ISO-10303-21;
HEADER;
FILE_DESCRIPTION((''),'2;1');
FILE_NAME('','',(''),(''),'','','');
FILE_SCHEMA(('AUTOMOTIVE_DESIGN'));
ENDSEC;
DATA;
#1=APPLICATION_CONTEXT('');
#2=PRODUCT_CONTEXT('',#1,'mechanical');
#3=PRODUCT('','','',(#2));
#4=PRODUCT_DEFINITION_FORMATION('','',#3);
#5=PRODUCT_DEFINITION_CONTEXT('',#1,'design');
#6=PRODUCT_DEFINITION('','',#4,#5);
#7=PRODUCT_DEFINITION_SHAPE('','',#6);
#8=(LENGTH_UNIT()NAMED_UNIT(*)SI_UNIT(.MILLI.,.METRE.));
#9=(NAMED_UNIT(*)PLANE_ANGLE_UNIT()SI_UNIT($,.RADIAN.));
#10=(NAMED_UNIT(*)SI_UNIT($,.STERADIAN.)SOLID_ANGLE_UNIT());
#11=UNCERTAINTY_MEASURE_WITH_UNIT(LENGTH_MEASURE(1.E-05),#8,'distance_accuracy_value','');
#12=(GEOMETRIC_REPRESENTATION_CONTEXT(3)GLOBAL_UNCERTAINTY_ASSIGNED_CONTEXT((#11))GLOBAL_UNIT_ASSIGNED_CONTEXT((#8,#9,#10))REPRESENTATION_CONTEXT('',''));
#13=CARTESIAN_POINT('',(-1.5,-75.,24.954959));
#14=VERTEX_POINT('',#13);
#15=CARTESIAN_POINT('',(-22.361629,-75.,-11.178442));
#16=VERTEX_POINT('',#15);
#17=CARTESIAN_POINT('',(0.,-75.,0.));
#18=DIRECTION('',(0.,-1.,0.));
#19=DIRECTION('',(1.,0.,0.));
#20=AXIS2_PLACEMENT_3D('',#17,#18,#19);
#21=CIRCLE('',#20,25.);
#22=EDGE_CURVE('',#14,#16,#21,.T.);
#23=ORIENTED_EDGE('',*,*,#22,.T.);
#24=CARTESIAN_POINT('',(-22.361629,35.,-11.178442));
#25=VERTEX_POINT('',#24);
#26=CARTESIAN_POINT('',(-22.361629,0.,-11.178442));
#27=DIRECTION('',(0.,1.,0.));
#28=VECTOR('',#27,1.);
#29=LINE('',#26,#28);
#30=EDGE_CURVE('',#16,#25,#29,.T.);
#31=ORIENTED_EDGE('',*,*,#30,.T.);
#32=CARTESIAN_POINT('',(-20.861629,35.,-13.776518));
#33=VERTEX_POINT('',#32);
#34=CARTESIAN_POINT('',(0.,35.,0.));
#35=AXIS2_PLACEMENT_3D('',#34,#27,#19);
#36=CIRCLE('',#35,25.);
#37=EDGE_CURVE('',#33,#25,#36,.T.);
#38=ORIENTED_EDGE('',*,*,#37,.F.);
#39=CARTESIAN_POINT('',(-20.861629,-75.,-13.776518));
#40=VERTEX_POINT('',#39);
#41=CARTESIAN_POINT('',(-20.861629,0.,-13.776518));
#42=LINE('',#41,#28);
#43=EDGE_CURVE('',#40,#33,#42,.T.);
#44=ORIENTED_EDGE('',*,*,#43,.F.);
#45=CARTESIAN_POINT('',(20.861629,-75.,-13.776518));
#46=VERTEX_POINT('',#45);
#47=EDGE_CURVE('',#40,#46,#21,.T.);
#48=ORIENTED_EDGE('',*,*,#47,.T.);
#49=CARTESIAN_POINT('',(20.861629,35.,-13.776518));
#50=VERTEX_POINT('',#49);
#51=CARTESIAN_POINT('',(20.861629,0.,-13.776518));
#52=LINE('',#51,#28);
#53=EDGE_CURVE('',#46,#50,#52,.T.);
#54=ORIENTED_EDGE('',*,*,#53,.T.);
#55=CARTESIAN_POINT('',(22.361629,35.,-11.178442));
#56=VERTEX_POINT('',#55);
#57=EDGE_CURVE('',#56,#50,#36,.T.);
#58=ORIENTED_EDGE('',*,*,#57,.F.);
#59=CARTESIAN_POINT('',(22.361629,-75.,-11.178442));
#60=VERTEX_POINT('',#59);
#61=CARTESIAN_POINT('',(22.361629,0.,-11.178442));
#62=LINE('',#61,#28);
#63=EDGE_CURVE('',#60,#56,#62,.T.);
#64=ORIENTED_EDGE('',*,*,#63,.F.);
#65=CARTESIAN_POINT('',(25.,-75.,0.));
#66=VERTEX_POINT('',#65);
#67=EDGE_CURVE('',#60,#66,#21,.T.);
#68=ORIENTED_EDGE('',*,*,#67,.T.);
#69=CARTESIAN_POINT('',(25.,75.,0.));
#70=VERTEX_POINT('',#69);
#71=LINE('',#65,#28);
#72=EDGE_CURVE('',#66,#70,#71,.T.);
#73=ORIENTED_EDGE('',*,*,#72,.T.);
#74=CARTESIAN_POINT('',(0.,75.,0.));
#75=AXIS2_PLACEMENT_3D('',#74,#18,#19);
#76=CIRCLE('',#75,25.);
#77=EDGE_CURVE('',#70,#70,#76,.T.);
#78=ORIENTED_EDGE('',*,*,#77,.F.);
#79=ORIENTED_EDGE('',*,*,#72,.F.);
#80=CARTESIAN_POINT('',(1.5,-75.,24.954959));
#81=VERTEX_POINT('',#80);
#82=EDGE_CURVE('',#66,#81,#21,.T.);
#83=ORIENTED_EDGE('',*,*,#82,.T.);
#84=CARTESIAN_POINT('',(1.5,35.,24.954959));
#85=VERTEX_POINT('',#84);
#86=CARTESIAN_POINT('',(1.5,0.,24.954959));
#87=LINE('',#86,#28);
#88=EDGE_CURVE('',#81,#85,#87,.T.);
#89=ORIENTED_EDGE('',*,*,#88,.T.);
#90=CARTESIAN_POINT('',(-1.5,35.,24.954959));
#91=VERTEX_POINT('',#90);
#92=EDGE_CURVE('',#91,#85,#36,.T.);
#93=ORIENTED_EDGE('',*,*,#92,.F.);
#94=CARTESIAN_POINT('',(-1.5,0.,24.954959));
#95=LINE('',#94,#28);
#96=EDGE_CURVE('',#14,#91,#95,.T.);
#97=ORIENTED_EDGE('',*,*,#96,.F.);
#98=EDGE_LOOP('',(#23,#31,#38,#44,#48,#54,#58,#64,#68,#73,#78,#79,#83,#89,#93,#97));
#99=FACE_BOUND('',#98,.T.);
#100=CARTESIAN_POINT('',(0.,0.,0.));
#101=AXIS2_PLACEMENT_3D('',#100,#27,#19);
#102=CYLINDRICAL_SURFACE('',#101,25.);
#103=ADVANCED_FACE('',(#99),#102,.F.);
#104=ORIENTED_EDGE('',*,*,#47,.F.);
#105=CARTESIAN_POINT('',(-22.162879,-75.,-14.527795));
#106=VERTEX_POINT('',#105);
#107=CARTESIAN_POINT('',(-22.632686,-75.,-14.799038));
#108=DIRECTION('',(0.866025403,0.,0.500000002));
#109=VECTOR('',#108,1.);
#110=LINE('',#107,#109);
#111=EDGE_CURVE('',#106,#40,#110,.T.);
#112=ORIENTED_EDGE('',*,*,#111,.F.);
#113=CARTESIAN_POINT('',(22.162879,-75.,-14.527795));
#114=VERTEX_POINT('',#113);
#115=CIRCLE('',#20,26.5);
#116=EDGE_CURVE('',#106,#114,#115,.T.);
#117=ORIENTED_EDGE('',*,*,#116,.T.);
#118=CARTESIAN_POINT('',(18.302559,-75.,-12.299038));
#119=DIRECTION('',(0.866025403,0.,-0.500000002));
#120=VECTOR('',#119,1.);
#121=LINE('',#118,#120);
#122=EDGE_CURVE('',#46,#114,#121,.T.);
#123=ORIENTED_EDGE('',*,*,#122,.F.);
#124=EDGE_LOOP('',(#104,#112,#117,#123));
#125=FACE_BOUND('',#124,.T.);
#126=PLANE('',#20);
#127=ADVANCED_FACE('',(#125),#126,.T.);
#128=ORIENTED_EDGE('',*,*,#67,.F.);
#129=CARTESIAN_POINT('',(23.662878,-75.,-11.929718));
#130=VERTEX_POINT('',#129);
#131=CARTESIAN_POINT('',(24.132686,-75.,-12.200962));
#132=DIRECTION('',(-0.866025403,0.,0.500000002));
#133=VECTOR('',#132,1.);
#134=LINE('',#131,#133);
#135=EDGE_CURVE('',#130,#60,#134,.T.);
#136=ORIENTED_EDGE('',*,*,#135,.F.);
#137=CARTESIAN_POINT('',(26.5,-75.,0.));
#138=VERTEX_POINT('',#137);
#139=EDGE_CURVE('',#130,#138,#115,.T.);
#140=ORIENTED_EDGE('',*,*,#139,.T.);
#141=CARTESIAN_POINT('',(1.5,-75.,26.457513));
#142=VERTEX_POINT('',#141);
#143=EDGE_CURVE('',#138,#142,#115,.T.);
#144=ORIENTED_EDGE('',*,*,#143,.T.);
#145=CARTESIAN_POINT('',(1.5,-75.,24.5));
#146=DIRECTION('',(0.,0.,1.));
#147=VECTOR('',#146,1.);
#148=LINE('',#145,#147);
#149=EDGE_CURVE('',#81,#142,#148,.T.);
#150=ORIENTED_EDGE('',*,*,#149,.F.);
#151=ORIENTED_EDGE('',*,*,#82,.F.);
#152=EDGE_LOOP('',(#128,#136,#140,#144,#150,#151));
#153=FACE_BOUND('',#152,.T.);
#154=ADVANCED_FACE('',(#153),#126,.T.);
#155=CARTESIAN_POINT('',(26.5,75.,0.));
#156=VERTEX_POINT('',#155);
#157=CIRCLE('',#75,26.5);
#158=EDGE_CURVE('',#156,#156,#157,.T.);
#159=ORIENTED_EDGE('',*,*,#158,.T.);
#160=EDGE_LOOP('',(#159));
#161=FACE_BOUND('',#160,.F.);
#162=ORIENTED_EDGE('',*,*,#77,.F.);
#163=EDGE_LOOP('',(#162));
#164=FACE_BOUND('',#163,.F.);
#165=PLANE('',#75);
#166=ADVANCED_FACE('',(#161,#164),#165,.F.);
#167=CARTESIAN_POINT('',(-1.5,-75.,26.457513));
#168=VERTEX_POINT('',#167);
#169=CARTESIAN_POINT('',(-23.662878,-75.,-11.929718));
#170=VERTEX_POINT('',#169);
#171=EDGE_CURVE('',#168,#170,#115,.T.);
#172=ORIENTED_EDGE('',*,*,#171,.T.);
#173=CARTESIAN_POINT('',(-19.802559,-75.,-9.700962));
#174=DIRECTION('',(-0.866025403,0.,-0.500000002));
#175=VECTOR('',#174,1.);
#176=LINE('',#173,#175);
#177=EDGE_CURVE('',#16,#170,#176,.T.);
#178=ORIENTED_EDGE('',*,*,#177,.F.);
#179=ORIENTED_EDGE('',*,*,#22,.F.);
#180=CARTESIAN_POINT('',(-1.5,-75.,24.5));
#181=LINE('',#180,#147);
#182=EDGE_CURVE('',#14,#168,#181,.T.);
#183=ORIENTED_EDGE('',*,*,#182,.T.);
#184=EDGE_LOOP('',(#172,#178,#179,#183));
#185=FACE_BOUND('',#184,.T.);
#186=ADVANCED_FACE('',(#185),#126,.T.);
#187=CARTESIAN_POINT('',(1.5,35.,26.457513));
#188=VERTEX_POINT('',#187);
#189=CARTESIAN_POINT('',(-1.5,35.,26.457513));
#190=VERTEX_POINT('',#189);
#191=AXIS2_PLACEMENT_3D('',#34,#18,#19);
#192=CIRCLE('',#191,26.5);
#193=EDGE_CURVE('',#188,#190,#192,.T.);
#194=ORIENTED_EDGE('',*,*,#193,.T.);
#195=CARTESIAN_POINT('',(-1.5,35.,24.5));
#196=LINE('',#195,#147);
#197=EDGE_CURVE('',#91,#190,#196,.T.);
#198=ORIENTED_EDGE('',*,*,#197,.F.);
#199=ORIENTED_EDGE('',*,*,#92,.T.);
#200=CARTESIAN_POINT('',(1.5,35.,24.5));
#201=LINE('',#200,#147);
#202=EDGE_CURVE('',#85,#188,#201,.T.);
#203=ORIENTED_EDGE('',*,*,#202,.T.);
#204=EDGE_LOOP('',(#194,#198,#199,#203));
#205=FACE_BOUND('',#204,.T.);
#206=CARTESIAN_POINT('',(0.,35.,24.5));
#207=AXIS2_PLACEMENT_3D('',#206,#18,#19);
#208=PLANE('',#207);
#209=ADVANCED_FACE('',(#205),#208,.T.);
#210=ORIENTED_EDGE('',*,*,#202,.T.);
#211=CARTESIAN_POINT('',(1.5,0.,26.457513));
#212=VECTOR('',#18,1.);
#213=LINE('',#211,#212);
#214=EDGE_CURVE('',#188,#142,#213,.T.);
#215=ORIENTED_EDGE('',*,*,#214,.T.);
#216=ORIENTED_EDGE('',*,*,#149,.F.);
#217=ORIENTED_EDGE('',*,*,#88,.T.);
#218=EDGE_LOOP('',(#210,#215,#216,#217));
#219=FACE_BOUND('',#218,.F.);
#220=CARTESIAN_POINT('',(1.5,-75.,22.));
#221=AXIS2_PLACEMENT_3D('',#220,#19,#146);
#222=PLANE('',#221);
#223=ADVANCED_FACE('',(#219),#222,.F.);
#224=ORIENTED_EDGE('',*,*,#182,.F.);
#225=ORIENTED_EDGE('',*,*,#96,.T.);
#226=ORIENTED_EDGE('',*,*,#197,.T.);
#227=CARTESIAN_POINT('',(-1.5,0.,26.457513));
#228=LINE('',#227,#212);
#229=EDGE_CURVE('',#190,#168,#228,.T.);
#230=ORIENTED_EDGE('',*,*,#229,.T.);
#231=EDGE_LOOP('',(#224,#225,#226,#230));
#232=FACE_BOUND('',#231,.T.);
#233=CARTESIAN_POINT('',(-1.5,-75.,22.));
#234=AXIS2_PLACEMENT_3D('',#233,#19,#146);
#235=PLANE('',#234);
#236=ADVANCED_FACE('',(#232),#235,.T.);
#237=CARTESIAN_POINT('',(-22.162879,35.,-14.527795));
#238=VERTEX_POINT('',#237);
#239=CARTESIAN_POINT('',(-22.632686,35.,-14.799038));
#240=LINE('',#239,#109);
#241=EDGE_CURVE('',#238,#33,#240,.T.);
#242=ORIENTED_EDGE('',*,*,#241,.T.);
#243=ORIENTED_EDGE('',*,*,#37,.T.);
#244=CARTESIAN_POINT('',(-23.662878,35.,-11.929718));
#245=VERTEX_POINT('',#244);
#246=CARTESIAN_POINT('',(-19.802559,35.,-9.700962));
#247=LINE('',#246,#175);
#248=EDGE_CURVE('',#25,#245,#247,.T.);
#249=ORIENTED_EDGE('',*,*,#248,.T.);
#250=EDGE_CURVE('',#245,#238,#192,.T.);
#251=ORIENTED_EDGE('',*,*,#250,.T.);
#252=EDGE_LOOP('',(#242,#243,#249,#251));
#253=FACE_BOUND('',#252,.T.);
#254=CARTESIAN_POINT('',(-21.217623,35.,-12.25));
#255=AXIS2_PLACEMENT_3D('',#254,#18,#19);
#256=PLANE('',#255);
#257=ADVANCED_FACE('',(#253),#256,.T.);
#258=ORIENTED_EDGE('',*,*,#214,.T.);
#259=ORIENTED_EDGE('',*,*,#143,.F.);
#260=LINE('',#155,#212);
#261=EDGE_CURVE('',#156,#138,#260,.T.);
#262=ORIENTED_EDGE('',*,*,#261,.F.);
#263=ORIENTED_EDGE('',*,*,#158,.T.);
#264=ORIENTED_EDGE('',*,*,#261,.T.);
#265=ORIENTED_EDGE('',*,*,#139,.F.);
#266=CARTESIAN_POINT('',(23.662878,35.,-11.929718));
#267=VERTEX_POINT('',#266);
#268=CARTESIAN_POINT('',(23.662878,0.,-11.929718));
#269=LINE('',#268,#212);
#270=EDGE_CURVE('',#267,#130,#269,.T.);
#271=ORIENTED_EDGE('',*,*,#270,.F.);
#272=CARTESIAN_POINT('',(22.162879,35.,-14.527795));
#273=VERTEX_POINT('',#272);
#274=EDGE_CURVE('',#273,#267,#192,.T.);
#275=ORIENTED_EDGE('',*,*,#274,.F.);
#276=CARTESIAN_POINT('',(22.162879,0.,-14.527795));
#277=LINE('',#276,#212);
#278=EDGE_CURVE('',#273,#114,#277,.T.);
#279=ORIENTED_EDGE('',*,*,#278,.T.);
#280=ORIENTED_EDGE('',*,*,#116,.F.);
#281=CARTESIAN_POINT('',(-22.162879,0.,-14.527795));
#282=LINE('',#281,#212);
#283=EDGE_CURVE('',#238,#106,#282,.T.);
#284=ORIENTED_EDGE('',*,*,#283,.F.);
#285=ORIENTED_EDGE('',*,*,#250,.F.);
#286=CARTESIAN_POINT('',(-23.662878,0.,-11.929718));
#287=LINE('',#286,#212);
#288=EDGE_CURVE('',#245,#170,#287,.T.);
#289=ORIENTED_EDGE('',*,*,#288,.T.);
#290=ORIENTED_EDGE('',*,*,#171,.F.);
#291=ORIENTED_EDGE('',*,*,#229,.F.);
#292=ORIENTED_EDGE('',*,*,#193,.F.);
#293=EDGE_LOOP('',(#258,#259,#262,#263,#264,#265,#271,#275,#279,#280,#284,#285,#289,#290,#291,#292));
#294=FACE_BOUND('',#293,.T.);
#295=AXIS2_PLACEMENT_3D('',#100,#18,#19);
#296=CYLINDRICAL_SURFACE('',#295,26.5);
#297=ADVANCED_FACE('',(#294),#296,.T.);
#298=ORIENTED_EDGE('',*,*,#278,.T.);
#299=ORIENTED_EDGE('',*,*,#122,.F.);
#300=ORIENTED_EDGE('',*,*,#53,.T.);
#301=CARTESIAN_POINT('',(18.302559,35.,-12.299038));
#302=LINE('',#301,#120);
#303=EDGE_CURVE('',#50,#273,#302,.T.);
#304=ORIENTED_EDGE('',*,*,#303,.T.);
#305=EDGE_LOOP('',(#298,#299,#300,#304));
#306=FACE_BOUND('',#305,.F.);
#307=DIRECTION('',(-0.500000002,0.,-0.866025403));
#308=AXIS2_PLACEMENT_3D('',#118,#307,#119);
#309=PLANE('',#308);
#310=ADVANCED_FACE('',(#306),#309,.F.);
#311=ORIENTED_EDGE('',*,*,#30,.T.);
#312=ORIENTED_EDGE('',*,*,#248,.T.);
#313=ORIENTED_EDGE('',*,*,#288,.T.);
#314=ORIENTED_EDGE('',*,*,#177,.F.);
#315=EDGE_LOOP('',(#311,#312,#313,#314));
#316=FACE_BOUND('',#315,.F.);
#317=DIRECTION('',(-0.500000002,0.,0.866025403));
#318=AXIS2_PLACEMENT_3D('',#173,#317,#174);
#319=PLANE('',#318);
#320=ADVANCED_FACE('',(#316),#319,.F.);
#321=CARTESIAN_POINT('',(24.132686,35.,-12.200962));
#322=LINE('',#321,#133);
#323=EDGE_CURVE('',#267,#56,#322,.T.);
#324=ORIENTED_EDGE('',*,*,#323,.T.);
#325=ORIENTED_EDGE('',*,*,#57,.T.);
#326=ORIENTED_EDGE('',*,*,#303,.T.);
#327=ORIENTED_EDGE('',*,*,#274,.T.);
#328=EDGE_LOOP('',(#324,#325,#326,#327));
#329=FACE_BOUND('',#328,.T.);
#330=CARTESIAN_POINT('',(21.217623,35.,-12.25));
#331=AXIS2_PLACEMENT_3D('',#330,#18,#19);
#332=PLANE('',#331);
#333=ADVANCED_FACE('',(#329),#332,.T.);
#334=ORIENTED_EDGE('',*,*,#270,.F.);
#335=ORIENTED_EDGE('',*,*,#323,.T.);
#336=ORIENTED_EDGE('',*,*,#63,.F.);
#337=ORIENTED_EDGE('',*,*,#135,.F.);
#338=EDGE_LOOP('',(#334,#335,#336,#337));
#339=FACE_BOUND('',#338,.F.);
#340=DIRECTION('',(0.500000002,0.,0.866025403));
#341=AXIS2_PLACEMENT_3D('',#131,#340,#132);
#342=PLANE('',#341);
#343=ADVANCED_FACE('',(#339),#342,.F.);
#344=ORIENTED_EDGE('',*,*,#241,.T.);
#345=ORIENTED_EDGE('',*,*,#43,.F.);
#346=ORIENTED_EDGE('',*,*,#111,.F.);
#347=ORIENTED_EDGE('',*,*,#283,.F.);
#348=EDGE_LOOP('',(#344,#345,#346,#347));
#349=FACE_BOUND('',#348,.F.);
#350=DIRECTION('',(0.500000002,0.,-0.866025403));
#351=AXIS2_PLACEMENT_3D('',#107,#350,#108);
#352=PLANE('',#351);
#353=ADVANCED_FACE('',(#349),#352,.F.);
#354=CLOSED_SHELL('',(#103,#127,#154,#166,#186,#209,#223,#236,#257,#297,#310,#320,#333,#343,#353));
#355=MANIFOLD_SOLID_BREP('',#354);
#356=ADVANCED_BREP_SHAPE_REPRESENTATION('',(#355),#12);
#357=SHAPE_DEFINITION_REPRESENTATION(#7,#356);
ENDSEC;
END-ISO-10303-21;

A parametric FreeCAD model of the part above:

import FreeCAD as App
import Part
import Sketcher

V = App.Vector
Q = App.Units.Quantity

doc = App.newDocument("Part")
body = doc.addObject("PartDesign::Body", "Body")

# Sketch on XZ plane
sketch1 = body.newObject("Sketcher::SketchObject", "Sketch")
sketch1.AttachmentSupport = (doc.getObject("XZ_Plane"), [""])
sketch1.MapMode = "FlatFace"
sketch1.addGeometry(Part.Circle(V(0, 0, 0), V(0, 0, 1), 26), False)
sketch1.addGeometry(Part.Circle(V(0, 0, 0), V(0, 0, 1), 25), False)
sketch1.addConstraint(Sketcher.Constraint("Coincident", 0, 3, -1, 1))
sketch1.addConstraint(Sketcher.Constraint("Coincident", 1, 3, -1, 1))
sketch1.addConstraint(Sketcher.Constraint("Diameter", 0, Q("53 mm")))
sketch1.addConstraint(Sketcher.Constraint("Diameter", 1, Q("50 mm")))
pad1 = body.newObject("PartDesign::Pad", "Pad")
pad1.Profile = sketch1
pad1.Length = 150
pad1.Midplane = True

# Sketch on XZ plane
sketch2 = body.newObject("Sketcher::SketchObject", "Sketch001")
sketch2.AttachmentSupport = (doc.getObject("XZ_Plane"), [""])
sketch2.MapMode = "FlatFace"
sketch2.AttachmentOffset = App.Placement(V(0, 0, 75), App.Rotation())
sketch2.addGeometry(Part.LineSegment(V(-1.5, 27, 0), V(-1.5, 22, 0)), False)
sketch2.addGeometry(Part.LineSegment(V(-1.5, 22, 0), V(1.5, 22, 0)), False)
sketch2.addGeometry(Part.LineSegment(V(1.5, 22, 0), V(1.5, 27, 0)), False)
sketch2.addGeometry(Part.LineSegment(V(1.5, 27, 0), V(-1.5, 27, 0)), False)
sketch2.addGeometry(Part.LineSegment(V(-24.1, -12.2, 0), V(-22.6, -14.8, 0)), False)
sketch2.addGeometry(Part.LineSegment(V(-22.6, -14.8, 0), V(-18.3, -12.3, 0)), False)
sketch2.addGeometry(Part.LineSegment(V(-18.3, -12.3, 0), V(-19.8, -9.7, 0)), False)
sketch2.addGeometry(Part.LineSegment(V(-19.8, -9.7, 0), V(-24.1, -12.2, 0)), False)
sketch2.addGeometry(Part.LineSegment(V(22.6, -14.8, 0), V(24.1, -12.2, 0)), False)
sketch2.addGeometry(Part.LineSegment(V(24.1, -12.2, 0), V(19.8, -9.7, 0)), False)
sketch2.addGeometry(Part.LineSegment(V(19.8, -9.7, 0), V(18.3, -12.3, 0)), False)
sketch2.addGeometry(Part.LineSegment(V(18.3, -12.3, 0), V(22.6, -14.8, 0)), False)
sketch2.addConstraint(Sketcher.Constraint("Coincident", 0, 2, 1, 1))
sketch2.addConstraint(Sketcher.Constraint("Coincident", 1, 2, 2, 1))
sketch2.addConstraint(Sketcher.Constraint("Coincident", 2, 2, 3, 1))
sketch2.addConstraint(Sketcher.Constraint("Coincident", 3, 2, 0, 1))
sketch2.addConstraint(Sketcher.Constraint("Coincident", 4, 2, 5, 1))
sketch2.addConstraint(Sketcher.Constraint("Coincident", 5, 2, 6, 1))
sketch2.addConstraint(Sketcher.Constraint("Coincident", 6, 2, 7, 1))
sketch2.addConstraint(Sketcher.Constraint("Coincident", 7, 2, 4, 1))
sketch2.addConstraint(Sketcher.Constraint("Coincident", 8, 2, 9, 1))
sketch2.addConstraint(Sketcher.Constraint("Coincident", 9, 2, 10, 1))
sketch2.addConstraint(Sketcher.Constraint("Coincident", 10, 2, 11, 1))
sketch2.addConstraint(Sketcher.Constraint("Coincident", 11, 2, 8, 1))
sketch2.addConstraint(Sketcher.Constraint("Vertical", 0))
sketch2.addConstraint(Sketcher.Constraint("Horizontal", 1))
sketch2.addConstraint(Sketcher.Constraint("Vertical", 2))
sketch2.addConstraint(Sketcher.Constraint("Horizontal", 3))
sketch2.addConstraint(Sketcher.Constraint("Symmetric", 7, 2, 8, 2, -2))
sketch2.addConstraint(Sketcher.Constraint("Symmetric", 6, 2, 9, 2, -2))
sketch2.addConstraint(Sketcher.Constraint("Symmetric", 5, 2, 10, 2, -2))
sketch2.addConstraint(Sketcher.Constraint("Symmetric", 4, 2, 11, 2, -2))
sketch2.addConstraint(Sketcher.Constraint("Perpendicular", 4, 5))
sketch2.addConstraint(Sketcher.Constraint("Perpendicular", 5, 6))
sketch2.addConstraint(Sketcher.Constraint("Perpendicular", 6, 7))
sketch2.addConstraint(Sketcher.Constraint("DistanceX", 1, 1, 1, 2, Q("3 mm")))
sketch2.addConstraint(Sketcher.Constraint("DistanceY", 0, 2, 0, 1, Q("5 mm")))
sketch2.addConstraint(Sketcher.Constraint("Angle", 4, Q("-59.999998 deg")))
sketch2.addConstraint(Sketcher.Constraint("Distance", 4, Q("3 mm")))
sketch2.addConstraint(Sketcher.Constraint("Distance", 5, Q("5 mm")))
sketch2.addConstraint(Sketcher.Constraint("DistanceY", -1, 1, 0, 2, Q("22 mm")))
sketch2.addConstraint(Sketcher.Constraint("DistanceX", 0, 2, -1, 1, Q("1.5 mm")))
sketch2.addConstraint(Sketcher.Constraint("DistanceX", 5, 2, -1, 1, Q("18.302559 mm")))
sketch2.addConstraint(Sketcher.Constraint("DistanceY", 4, 2, -1, 1, Q("14.799038 mm")))
pocket1 = body.newObject("PartDesign::Pocket", "Pocket")
pocket1.Profile = sketch2
pocket1.Length = 110

doc.recompute()
